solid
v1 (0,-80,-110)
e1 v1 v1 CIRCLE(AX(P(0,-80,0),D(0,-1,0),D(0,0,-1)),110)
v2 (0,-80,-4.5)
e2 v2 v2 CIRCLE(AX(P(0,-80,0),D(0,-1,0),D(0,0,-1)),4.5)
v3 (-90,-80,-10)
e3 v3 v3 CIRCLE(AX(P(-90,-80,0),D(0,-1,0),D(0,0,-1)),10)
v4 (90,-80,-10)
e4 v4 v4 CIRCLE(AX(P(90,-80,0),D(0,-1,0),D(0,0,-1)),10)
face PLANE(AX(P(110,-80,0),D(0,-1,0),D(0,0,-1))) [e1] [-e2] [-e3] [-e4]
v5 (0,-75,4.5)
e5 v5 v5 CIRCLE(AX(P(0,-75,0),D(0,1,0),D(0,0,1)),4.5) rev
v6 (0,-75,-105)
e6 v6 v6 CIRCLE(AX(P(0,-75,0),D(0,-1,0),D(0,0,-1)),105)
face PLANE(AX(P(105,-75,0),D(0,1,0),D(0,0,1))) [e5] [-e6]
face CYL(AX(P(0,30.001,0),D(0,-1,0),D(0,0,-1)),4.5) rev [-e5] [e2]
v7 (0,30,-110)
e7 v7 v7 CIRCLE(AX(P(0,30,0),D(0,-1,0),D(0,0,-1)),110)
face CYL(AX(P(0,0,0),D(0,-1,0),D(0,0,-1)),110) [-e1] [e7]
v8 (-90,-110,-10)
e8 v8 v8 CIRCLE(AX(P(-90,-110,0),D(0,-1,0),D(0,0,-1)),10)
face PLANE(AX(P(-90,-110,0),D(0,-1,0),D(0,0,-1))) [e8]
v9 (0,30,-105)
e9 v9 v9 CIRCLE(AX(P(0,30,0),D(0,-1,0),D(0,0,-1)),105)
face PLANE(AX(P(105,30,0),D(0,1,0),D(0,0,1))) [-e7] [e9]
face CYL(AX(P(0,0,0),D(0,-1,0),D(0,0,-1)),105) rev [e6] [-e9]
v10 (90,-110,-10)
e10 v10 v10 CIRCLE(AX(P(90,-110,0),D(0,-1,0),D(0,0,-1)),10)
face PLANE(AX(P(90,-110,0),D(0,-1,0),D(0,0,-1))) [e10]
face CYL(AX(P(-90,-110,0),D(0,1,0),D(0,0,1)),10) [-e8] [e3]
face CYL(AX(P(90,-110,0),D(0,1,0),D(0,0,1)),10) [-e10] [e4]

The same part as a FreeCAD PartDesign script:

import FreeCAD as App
import Part
import Sketcher
from FreeCAD import Vector


def add_polygon(sketch, points):
    """Adds a closed chain of lines whose ends are joined by coincident constraints."""
    first, n = sketch.GeometryCount, len(points)
    for a, b in zip(points, points[1:] + points[:1]):
        sketch.addGeometry(Part.LineSegment(App.Vector(*a, 0), App.Vector(*b, 0)), False)
    for i in range(n):
        sketch.addConstraint(Sketcher.Constraint("Coincident", first + i, 2, first + (i + 1) % n, 1))

doc = App.newDocument("Part")
params = doc.addObject("Spreadsheet::Sheet", "Params")
for row, (alias, value) in enumerate([
    ("sketch1_width", "110 mm"),
    ("sketch1_width2", "5 mm"),
    ("revolution_angle", "360 deg"),
    ("sketch2_diameter", "9 mm"),
    ("sketch3_diameter", "20 mm"),
    ("pad1_length", "30 mm"),
], start=1):
    params.set(f"A{row}", alias)
    params.set(f"B{row}", "=" + value)
    params.setAlias(f"B{row}", alias)

body = doc.addObject("PartDesign::Body", "Body")

# Sketch on XY plane
sketch1 = doc.addObject("Sketcher::SketchObject", "Sketch")
body.addObject(sketch1)
sketch1.AttachmentSupport = (doc.XY_Plane, [""])
sketch1.MapMode = "FlatFace"
add_polygon(sketch1, [(0, -80), (110, -80), (110, 30), (105, 30), (105, -75), (0, -75)])  # lines 0-5
sketch1.addConstraint(Sketcher.Constraint("Horizontal", 0))
sketch1.addConstraint(Sketcher.Constraint("Vertical", 1))
sketch1.addConstraint(Sketcher.Constraint("Horizontal", 2))
sketch1.addConstraint(Sketcher.Constraint("Vertical", 3))
sketch1.addConstraint(Sketcher.Constraint("Horizontal", 4))
sketch1.addConstraint(Sketcher.Constraint("Vertical", 5))
sketch1.addConstraint(Sketcher.Constraint("PointOnObject", 4, 2, -2))
sketch1.addConstraint(Sketcher.Constraint("Equal", 0, 1))
sketch1.addConstraint(Sketcher.Constraint("Equal", 4, 3))
sketch1.addConstraint(Sketcher.Constraint("DistanceX", 0, 1, 0, 2, 110.0))
sketch1.addConstraint(Sketcher.Constraint("DistanceX", 2, 2, 2, 1, 5.0))
sketch1.addConstraint(Sketcher.Constraint("DistanceY", 0, 2, -1, 1, 80.0))
sketch1.setExpression("Constraints[15]", "Params.sketch1_width")
sketch1.setExpression("Constraints[16]", "Params.sketch1_width2")
revolution = doc.addObject("PartDesign::Revolution", "Revolution")
body.addObject(revolution)
revolution.Profile = sketch1
revolution.ReferenceAxis = (sketch1, ["V_Axis"])
revolution.setExpression("Angle", "Params.revolution_angle")

# Sketch on XZ plane
sketch2 = doc.addObject("Sketcher::SketchObject", "Sketch001")
body.addObject(sketch2)
sketch2.AttachmentSupport = (doc.XZ_Plane, [""])
sketch2.MapMode = "FlatFace"
sketch2.AttachmentOffset = App.Placement(Vector(0, 0, 80), App.Rotation())
sketch2.addGeometry(Part.Circle(Vector(0, 0, 0), Vector(0, 0, 1), 4.5), False)
sketch2.addConstraint(Sketcher.Constraint("Coincident", 0, 3, -1, 1))
sketch2.addConstraint(Sketcher.Constraint("Diameter", 0, 9.0))
sketch2.setExpression("Constraints[1]", "Params.sketch2_diameter")
pocket1 = doc.addObject("PartDesign::Pocket", "Pocket")
body.addObject(pocket1)
pocket1.Profile = sketch2
pocket1.Type = "UpToFirst"

# Sketch on XZ plane
sketch3 = doc.addObject("Sketcher::SketchObject", "Sketch002")
body.addObject(sketch3)
sketch3.AttachmentSupport = (doc.XZ_Plane, [""])
sketch3.MapMode = "FlatFace"
sketch3.AttachmentOffset = App.Placement(Vector(0, 0, 80), App.Rotation())
sketch3.addGeometry(Part.Circle(Vector(-90, 0, 0), Vector(0, 0, 1), 10), False)
sketch3.addGeometry(Part.Circle(Vector(90, 0, 0), Vector(0, 0, 1), 10), False)
sketch3.addConstraint(Sketcher.Constraint("Equal", 0, 1))
sketch3.addConstraint(Sketcher.Constraint("Symmetric", 0, 3, 1, 3, -1, 1))
sketch3.addConstraint(Sketcher.Constraint("PointOnObject", 0, 3, -1))
sketch3.addConstraint(Sketcher.Constraint("Diameter", 0, 20.0))
sketch3.addConstraint(Sketcher.Constraint("DistanceX", 0, 3, -1, 1, 90.0))
sketch3.setExpression("Constraints[3]", "Params.sketch3_diameter")
pad1 = doc.addObject("PartDesign::Pad", "Pad")
body.addObject(pad1)
pad1.Profile = sketch3
pad1.setExpression("Length", "Params.pad1_length")

doc.recompute()
